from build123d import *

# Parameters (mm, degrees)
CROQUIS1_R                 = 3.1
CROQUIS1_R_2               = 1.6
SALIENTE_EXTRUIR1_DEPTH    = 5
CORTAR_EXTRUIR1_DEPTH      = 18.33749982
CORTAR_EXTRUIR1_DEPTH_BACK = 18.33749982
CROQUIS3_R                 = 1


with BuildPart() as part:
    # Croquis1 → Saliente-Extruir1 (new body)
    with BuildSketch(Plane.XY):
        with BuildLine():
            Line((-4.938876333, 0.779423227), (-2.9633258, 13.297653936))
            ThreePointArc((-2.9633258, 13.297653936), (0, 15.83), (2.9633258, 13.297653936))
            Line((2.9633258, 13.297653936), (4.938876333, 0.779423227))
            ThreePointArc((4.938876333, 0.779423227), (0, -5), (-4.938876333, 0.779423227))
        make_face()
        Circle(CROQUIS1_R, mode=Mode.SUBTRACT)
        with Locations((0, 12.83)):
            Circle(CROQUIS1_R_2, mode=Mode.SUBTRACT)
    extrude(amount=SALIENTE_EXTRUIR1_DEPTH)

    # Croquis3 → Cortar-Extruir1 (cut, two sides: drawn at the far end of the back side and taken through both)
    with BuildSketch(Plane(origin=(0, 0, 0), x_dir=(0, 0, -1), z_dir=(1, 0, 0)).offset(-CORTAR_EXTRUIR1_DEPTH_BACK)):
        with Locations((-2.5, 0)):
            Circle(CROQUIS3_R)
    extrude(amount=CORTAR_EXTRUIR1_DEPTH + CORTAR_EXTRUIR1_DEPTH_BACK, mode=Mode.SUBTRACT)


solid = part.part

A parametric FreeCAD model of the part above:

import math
import FreeCAD as App
import Part
import Sketcher
Q = App.Units.Quantity

doc = App.newDocument("Part")
params = doc.addObject("Spreadsheet::Sheet", "Params")
for row, (alias, value) in enumerate([
    ("sketch1_radius", "5 mm"),
    ("sketch1_radius2", "3 mm"),
    ("sketch1_diameter", "6.2 mm"),
    ("sketch1_diameter2", "3.2 mm"),
    ("pad1_length", "5 mm"),
    ("sketch2_diameter", "2 mm"),
], start=1):
    params.set(f"A{row}", alias)
    params.set(f"B{row}", "=" + value)
    params.setAlias(f"B{row}", alias)

body = doc.addObject("PartDesign::Body", "Body")

sketch1 = body.newObject("Sketcher::SketchObject", "Sketch")
sketch1.AttachmentSupport = (doc.getObject("XY_Plane"), [""])
sketch1.MapMode = "FlatFace"
sketch1.addGeometry(Part.LineSegment(App.Vector(-3, 13.3, 0), App.Vector(-4.9, 0.8, 0)), False)
sketch1.addGeometry(Part.ArcOfCircle(Part.Circle(App.Vector(0, 0, 0), App.Vector(0, 0, 1), 5), math.radians(171), math.radians(369)), False)
sketch1.addGeometry(Part.LineSegment(App.Vector(4.9, 0.8, 0), App.Vector(3, 13.3, 0)), False)
sketch1.addGeometry(Part.ArcOfCircle(Part.Circle(App.Vector(0, 12.8, 0), App.Vector(0, 0, 1), 3), math.radians(9), math.radians(171)), False)
sketch1.addGeometry(Part.Circle(App.Vector(0, 0, 0), App.Vector(0, 0, 1), 3.1), False)
sketch1.addGeometry(Part.Circle(App.Vector(0, 12.8, 0), App.Vector(0, 0, 1), 1.6), False)
sketch1.addConstraint(Sketcher.Constraint("Tangent", 0, 2, 1, 1))
sketch1.addConstraint(Sketcher.Constraint("Tangent", 1, 2, 2, 1))
sketch1.addConstraint(Sketcher.Constraint("Tangent", 2, 2, 3, 1))
sketch1.addConstraint(Sketcher.Constraint("Tangent", 3, 2, 0, 1))
sketch1.addConstraint(Sketcher.Constraint("Coincident", 1, 3, -1, 1))
sketch1.addConstraint(Sketcher.Constraint("Coincident", 4, 3, -1, 1))
sketch1.addConstraint(Sketcher.Constraint("Coincident", 5, 3, 3, 3))
sketch1.addConstraint(Sketcher.Constraint("PointOnObject", 3, 3, -2))
sketch1.addConstraint(Sketcher.Constraint("Radius", 1, Q("5 mm")))
sketch1.addConstraint(Sketcher.Constraint("Radius", 3, Q("3 mm")))
sketch1.addConstraint(Sketcher.Constraint("Diameter", 4, Q("6.2 mm")))
sketch1.addConstraint(Sketcher.Constraint("Diameter", 5, Q("3.2 mm")))
sketch1.addConstraint(Sketcher.Constraint("DistanceY", -1, 1, 3, 3, Q("12.83 mm")))
sketch1.setExpression("Constraints[8]", "Params.sketch1_radius")
sketch1.setExpression("Constraints[9]", "Params.sketch1_radius2")
sketch1.setExpression("Constraints[10]", "Params.sketch1_diameter")
sketch1.setExpression("Constraints[11]", "Params.sketch1_diameter2")
pad1 = body.newObject("PartDesign::Pad", "Pad")
pad1.Profile = sketch1
pad1.setExpression("Length", "Params.pad1_length")

sketch2 = body.newObject("Sketcher::SketchObject", "Sketch001")
sketch2.AttachmentSupport = (doc.getObject("YZ_Plane"), [""])
sketch2.MapMode = "FlatFace"
sketch2.addGeometry(Part.Circle(App.Vector(0, 2.5, 0), App.Vector(0, 0, 1), 1), False)
sketch2.addConstraint(Sketcher.Constraint("PointOnObject", 0, 3, -2))
sketch2.addConstraint(Sketcher.Constraint("Diameter", 0, Q("2 mm")))
sketch2.addConstraint(Sketcher.Constraint("DistanceY", -1, 1, 0, 3, Q("2.5 mm")))
sketch2.setExpression("Constraints[1]", "Params.sketch2_diameter")
pocket1 = body.newObject("PartDesign::Pocket", "Pocket")
pocket1.Profile = sketch2
pocket1.Type = "ThroughAll"
pocket1.Midplane = True

doc.recompute()
